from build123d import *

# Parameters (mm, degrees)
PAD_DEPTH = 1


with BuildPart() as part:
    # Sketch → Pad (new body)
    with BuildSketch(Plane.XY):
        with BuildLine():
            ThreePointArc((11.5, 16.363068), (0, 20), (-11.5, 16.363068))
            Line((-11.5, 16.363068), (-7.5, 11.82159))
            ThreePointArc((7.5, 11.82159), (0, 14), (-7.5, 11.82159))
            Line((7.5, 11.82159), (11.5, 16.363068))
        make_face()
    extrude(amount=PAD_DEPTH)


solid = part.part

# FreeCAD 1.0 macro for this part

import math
import FreeCAD as App
import Part
import Sketcher

V = App.Vector

doc = App.newDocument("Part")
body = doc.addObject("PartDesign::Body", "Body")

sketch1 = body.newObject("Sketcher::SketchObject", "Sketch")
sketch1.AttachmentSupport = (doc.getObject("XY_Plane"), [""])
sketch1.MapMode = "FlatFace"
sketch1.addGeometry([
    Part.ArcOfCircle(Part.Circle(V(0, 0.000001, 0), V(0, 0, 1), 19.999999), math.radians(54.900366), math.radians(125.099634)),
    Part.LineSegment(V(-11.5, 16.363068, 0), V(-7.5, 11.82159, 0)),
    Part.ArcOfCircle(Part.Circle(V(0, 0.000002, 0), V(0, 0, 1), 13.999998), math.radians(57.607629), math.radians(122.392371)),
    Part.LineSegment(V(7.5, 11.82159, 0), V(11.5, 16.363068, 0)),
], False)
sketch1.addConstraint([
    Sketcher.Constraint("Coincident", 0, 2, 1, 1),
    Sketcher.Constraint("Coincident", 1, 2, 2, 2),
    Sketcher.Constraint("Coincident", 2, 1, 3, 1),
    Sketcher.Constraint("Coincident", 3, 2, 0, 1),
    Sketcher.Constraint("Coincident", 0, 3, -1, 1),
    Sketcher.Constraint("Coincident", 2, 3, -1, 1),
    Sketcher.Constraint("Horizontal", 1, 2, 2, 1),
    Sketcher.Constraint("Horizontal", 0, 2, 3, 2),
    Sketcher.Constraint("Radius", 0, 19.999999),
    Sketcher.Constraint("DistanceX", 0, 2, 1, 2, 4.0),
    Sketcher.Constraint("DistanceX", 1, 2, 2, 1, 15.0),
    Sketcher.Constraint("Radius", 2, 13.999998),
])
pad1 = body.newObject("PartDesign::Pad", "Pad")
pad1.Profile = sketch1
pad1.Length = 1

doc.recompute()
